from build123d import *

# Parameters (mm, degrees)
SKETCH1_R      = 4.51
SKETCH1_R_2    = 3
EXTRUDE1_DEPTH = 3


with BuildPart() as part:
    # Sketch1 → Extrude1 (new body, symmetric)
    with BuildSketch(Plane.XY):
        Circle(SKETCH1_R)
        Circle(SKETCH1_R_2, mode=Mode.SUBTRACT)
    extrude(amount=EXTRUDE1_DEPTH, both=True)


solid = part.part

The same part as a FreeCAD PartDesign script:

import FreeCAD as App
import Part
import Sketcher
from FreeCAD import Vector

doc = App.newDocument("Part")
body = doc.addObject("PartDesign::Body", "Body")

# Sketch on XY plane
sketch1 = doc.addObject("Sketcher::SketchObject", "Sketch")
body.addObject(sketch1)
sketch1.AttachmentSupport = (doc.XY_Plane, [""])
sketch1.MapMode = "FlatFace"
sketch1.addGeometry([
    Part.Circle(Vector(0, 0, 0), Vector(0, 0, 1), 4.5),
    Part.Circle(Vector(0, 0, 0), Vector(0, 0, 1), 3),
], False)
sketch1.addConstraint([
    Sketcher.Constraint("Coincident", 0, 3, -1, 1),
    Sketcher.Constraint("Coincident", 1, 3, -1, 1),
    Sketcher.Constraint("Diameter", 1, 6.0),
    Sketcher.Constraint("Diameter", 0, 9.02),
])
pad1 = doc.addObject("PartDesign::Pad", "Pad")
body.addObject(pad1)
pad1.Profile = sketch1
pad1.Length = 6
pad1.Midplane = True

doc.recompute()
